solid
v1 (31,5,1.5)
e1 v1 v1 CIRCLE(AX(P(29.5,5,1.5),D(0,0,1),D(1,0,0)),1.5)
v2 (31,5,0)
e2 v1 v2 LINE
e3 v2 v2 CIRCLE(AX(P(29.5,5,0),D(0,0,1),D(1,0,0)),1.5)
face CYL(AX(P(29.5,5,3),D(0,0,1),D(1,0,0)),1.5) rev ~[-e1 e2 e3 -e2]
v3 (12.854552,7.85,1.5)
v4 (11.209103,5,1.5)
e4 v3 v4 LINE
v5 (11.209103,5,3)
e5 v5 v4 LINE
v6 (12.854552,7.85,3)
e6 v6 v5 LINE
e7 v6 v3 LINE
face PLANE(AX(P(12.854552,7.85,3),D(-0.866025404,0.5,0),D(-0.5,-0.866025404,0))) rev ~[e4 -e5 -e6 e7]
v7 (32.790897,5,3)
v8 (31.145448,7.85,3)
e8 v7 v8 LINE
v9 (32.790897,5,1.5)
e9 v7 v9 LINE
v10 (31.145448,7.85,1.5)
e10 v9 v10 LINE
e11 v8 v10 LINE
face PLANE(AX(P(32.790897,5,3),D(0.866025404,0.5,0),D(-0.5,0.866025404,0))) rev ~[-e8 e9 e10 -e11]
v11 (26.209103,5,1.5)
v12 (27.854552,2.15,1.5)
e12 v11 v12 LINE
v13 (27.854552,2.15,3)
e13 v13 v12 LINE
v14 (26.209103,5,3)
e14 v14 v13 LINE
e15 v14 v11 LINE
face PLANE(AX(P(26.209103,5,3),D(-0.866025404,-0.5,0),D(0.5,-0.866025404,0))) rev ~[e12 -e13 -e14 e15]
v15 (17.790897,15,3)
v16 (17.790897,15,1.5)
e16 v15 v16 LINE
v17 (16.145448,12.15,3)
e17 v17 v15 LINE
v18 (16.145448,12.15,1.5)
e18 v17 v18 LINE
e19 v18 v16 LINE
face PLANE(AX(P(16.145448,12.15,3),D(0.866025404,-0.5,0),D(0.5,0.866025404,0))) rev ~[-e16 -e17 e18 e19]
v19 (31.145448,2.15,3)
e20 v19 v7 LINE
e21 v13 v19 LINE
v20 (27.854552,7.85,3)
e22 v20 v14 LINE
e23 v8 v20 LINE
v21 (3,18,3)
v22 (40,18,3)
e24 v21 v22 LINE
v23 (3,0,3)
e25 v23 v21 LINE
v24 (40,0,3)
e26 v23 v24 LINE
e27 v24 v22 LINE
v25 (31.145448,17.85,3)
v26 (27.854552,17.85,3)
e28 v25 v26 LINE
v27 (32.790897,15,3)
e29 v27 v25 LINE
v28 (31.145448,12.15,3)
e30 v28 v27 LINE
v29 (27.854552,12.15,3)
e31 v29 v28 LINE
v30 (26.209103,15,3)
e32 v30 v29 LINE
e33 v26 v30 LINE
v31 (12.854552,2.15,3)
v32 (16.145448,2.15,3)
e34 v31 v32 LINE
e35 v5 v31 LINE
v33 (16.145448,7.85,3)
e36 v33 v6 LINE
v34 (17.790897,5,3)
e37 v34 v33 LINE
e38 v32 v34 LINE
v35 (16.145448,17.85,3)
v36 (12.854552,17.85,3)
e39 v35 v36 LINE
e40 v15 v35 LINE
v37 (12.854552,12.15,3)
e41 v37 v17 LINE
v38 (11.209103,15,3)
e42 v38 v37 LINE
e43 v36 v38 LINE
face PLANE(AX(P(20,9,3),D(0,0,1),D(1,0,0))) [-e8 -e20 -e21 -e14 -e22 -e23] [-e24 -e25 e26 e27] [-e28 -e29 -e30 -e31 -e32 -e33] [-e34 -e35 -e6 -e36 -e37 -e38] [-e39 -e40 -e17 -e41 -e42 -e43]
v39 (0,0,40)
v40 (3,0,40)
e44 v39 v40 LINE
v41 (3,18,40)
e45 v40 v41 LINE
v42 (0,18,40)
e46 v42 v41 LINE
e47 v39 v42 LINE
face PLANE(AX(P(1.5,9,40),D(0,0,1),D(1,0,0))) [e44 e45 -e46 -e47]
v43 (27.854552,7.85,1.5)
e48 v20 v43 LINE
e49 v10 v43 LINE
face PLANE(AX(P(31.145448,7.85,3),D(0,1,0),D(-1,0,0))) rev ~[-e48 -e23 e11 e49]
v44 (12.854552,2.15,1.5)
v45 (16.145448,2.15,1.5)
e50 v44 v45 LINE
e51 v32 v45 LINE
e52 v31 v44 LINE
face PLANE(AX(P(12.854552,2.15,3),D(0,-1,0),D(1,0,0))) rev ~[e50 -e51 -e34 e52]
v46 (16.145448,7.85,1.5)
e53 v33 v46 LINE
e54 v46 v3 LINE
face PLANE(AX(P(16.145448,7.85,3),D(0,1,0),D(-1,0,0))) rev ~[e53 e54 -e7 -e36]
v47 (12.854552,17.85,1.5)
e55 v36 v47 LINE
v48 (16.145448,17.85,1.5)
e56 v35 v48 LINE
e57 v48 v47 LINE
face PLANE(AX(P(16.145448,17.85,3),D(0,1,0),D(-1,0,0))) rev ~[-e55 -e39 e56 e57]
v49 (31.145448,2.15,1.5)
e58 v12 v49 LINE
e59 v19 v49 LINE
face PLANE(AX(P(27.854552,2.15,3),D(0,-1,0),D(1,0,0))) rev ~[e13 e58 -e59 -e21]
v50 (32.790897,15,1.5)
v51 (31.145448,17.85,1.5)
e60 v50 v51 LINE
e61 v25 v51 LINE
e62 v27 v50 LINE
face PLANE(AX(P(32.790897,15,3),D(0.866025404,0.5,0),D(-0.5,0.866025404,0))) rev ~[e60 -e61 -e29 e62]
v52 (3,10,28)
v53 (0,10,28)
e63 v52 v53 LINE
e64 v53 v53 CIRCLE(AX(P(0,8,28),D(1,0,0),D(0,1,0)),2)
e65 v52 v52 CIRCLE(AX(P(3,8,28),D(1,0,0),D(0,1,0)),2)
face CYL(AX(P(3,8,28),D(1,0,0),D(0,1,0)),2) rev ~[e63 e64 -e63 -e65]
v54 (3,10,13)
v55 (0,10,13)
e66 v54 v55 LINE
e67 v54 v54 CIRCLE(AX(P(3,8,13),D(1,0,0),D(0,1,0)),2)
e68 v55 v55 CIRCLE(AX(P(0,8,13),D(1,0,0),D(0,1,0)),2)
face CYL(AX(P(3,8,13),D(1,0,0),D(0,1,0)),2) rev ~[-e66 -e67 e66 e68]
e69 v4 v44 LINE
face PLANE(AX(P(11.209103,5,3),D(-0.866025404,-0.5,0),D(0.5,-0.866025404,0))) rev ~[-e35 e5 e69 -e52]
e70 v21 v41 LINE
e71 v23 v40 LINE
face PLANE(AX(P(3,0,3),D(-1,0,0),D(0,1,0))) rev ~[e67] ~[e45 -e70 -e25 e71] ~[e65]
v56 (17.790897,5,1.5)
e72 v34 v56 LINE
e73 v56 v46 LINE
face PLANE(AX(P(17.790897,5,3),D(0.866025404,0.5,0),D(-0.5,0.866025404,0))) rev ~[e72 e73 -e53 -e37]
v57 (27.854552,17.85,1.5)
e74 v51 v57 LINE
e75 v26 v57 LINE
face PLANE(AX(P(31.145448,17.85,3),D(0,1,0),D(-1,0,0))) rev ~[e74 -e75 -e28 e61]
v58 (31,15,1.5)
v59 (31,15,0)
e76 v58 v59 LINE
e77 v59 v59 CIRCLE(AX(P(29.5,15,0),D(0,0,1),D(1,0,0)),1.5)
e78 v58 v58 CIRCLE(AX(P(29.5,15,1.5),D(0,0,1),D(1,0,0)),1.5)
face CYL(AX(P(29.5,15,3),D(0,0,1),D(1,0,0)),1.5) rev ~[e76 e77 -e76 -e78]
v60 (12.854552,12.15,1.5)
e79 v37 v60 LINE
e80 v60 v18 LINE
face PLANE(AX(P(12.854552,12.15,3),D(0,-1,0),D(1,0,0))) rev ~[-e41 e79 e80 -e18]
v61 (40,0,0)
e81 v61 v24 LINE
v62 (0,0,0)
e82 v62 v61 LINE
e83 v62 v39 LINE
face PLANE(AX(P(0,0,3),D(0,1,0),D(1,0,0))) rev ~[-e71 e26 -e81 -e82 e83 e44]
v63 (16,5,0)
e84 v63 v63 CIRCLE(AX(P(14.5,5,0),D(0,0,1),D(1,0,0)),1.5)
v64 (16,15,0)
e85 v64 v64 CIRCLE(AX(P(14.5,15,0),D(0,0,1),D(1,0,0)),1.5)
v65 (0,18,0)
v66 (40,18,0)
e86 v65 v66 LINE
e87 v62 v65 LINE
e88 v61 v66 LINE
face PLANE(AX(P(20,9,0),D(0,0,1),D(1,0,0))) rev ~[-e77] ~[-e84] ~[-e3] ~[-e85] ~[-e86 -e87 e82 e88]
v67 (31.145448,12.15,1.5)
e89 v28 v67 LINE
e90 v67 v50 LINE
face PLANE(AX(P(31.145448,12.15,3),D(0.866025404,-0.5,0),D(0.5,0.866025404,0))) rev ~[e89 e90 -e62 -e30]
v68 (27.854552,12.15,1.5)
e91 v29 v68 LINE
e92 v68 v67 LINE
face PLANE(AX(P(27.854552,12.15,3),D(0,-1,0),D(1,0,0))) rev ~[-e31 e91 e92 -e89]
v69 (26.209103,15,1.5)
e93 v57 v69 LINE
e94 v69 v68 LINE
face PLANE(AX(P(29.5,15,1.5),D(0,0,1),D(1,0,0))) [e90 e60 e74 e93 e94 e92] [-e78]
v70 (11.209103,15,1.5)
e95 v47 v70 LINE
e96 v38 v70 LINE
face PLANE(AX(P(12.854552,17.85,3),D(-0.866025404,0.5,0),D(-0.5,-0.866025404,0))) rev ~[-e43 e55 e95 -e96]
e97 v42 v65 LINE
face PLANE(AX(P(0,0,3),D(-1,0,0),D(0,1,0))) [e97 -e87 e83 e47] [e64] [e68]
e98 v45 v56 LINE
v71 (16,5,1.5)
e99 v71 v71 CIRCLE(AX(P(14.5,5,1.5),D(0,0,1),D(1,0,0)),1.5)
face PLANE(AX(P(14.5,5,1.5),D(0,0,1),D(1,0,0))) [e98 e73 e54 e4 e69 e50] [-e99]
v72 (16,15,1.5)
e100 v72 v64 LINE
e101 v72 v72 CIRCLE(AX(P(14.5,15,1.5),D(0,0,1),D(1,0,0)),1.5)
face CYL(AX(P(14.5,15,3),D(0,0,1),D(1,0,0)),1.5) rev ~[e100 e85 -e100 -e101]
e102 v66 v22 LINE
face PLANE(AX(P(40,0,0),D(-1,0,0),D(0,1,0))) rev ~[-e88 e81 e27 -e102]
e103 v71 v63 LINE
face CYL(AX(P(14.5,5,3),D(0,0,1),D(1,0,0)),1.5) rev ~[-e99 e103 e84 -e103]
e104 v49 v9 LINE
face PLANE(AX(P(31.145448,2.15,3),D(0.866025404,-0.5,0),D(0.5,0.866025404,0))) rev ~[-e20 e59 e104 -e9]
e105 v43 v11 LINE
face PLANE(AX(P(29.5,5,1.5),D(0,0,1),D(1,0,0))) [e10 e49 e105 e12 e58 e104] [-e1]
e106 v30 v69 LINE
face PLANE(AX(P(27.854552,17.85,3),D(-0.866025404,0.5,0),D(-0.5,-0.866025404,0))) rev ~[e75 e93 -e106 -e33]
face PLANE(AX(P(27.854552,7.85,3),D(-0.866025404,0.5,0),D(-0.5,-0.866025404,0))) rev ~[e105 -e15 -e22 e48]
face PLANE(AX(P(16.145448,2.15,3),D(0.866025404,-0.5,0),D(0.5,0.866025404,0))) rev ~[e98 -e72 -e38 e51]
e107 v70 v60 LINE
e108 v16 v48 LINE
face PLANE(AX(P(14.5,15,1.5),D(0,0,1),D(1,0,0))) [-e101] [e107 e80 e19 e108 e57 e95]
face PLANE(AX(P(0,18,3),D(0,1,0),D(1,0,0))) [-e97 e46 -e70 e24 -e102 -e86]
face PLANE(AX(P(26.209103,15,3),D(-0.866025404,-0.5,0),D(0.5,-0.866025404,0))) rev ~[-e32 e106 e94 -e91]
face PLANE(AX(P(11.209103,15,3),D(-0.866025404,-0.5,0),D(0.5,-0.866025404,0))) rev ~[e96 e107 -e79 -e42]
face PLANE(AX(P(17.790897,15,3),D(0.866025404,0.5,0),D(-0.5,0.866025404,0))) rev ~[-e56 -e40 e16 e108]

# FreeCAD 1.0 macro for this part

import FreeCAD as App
import Part
import Sketcher
from FreeCAD import Vector
Q = App.Units.Quantity

doc = App.newDocument("Part")
params = doc.addObject("Spreadsheet::Sheet", "Params")
for row, (alias, value) in enumerate([
    ("sketch1_width", "40 mm"),
    ("sketch1_height", "18 mm"),
    ("pad1_length", "3 mm"),
    ("sketch2_width", "3 mm"),
    ("sketch2_height", "18 mm"),
    ("pad2_length", "37 mm"),
    ("sketch3_diameter", "3 mm"),
    ("sketch4_diameter", "4 mm"),
    ("pocket3_length", "1.5 mm"),
], start=1):
    params.set(f"A{row}", alias)
    params.set(f"B{row}", "=" + value)
    params.setAlias(f"B{row}", alias)

body = doc.addObject("PartDesign::Body", "Body")

# Sketch on XY plane
sketch1 = body.newObject("Sketcher::SketchObject", "Sketch")
sketch1.AttachmentSupport = (doc.getObject("XY_Plane"), [""])
sketch1.MapMode = "FlatFace"
sketch1.addGeometry(Part.LineSegment(Vector(0, 18, 0), Vector(0, 0, 0)), False)
sketch1.addGeometry(Part.LineSegment(Vector(0, 0, 0), Vector(40, 0, 0)), False)
sketch1.addGeometry(Part.LineSegment(Vector(40, 0, 0), Vector(40, 18, 0)), False)
sketch1.addGeometry(Part.LineSegment(Vector(40, 18, 0), Vector(0, 18, 0)), False)
sketch1.addConstraint(Sketcher.Constraint("Coincident", 0, 2, 1, 1))
sketch1.addConstraint(Sketcher.Constraint("Coincident", 1, 2, 2, 1))
sketch1.addConstraint(Sketcher.Constraint("Coincident", 2, 2, 3, 1))
sketch1.addConstraint(Sketcher.Constraint("Coincident", 3, 2, 0, 1))
sketch1.addConstraint(Sketcher.Constraint("Vertical", 0))
sketch1.addConstraint(Sketcher.Constraint("Horizontal", 1))
sketch1.addConstraint(Sketcher.Constraint("Vertical", 2))
sketch1.addConstraint(Sketcher.Constraint("Horizontal", 3))
sketch1.addConstraint(Sketcher.Constraint("Coincident", 0, 2, -1, 1))
sketch1.addConstraint(Sketcher.Constraint("DistanceX", 1, 1, 1, 2, Q("40 mm")))
sketch1.addConstraint(Sketcher.Constraint("DistanceY", 0, 2, 0, 1, Q("18 mm")))
sketch1.setExpression("Constraints[9]", "Params.sketch1_width")
sketch1.setExpression("Constraints[10]", "Params.sketch1_height")
pad1 = body.newObject("PartDesign::Pad", "Pad")
pad1.Profile = sketch1
pad1.setExpression("Length", "Params.pad1_length")

# Sketch on XY plane
sketch2 = body.newObject("Sketcher::SketchObject", "Sketch001")
sketch2.AttachmentSupport = (doc.getObject("XY_Plane"), [""])
sketch2.MapMode = "FlatFace"
sketch2.AttachmentOffset = App.Placement(Vector(0, 0, 3), App.Rotation())
sketch2.addGeometry(Part.LineSegment(Vector(0, 18, 0), Vector(0, 0, 0)), False)
sketch2.addGeometry(Part.LineSegment(Vector(0, 0, 0), Vector(3, 0, 0)), False)
sketch2.addGeometry(Part.LineSegment(Vector(3, 0, 0), Vector(3, 18, 0)), False)
sketch2.addGeometry(Part.LineSegment(Vector(3, 18, 0), Vector(0, 18, 0)), False)
sketch2.addConstraint(Sketcher.Constraint("Coincident", 0, 2, 1, 1))
sketch2.addConstraint(Sketcher.Constraint("Coincident", 1, 2, 2, 1))
sketch2.addConstraint(Sketcher.Constraint("Coincident", 2, 2, 3, 1))
sketch2.addConstraint(Sketcher.Constraint("Coincident", 3, 2, 0, 1))
sketch2.addConstraint(Sketcher.Constraint("Vertical", 0))
sketch2.addConstraint(Sketcher.Constraint("Horizontal", 1))
sketch2.addConstraint(Sketcher.Constraint("Vertical", 2))
sketch2.addConstraint(Sketcher.Constraint("Horizontal", 3))
sketch2.addConstraint(Sketcher.Constraint("Coincident", 0, 2, -1, 1))
sketch2.addConstraint(Sketcher.Constraint("DistanceX", 1, 1, 1, 2, Q("3 mm")))
sketch2.addConstraint(Sketcher.Constraint("DistanceY", 0, 2, 0, 1, Q("18 mm")))
sketch2.setExpression("Constraints[9]", "Params.sketch2_width")
sketch2.setExpression("Constraints[10]", "Params.sketch2_height")
pad2 = body.newObject("PartDesign::Pad", "Pad001")
pad2.Profile = sketch2
pad2.setExpression("Length", "Params.pad2_length")

# Sketch on XY plane
sketch3 = body.newObject("Sketcher::SketchObject", "Sketch002")
sketch3.AttachmentSupport = (doc.getObject("XY_Plane"), [""])
sketch3.MapMode = "FlatFace"
sketch3.AttachmentOffset = App.Placement(Vector(0, 0, 3), App.Rotation())
sketch3.addGeometry(Part.Circle(Vector(14.5, 15, 0), Vector(0, 0, 1), 1.5), False)
sketch3.addGeometry(Part.Circle(Vector(29.5, 15, 0), Vector(0, 0, 1), 1.5), False)
sketch3.addGeometry(Part.Circle(Vector(14.5, 5, 0), Vector(0, 0, 1), 1.5), False)
sketch3.addGeometry(Part.Circle(Vector(29.5, 5, 0), Vector(0, 0, 1), 1.5), False)
sketch3.addConstraint(Sketcher.Constraint("Equal", 0, 1))
sketch3.addConstraint(Sketcher.Constraint("Equal", 1, 2))
sketch3.addConstraint(Sketcher.Constraint("Equal", 2, 3))
sketch3.addConstraint(Sketcher.Constraint("Horizontal", 0, 3, 1, 3))
sketch3.addConstraint(Sketcher.Constraint("Horizontal", 2, 3, 3, 3))
sketch3.addConstraint(Sketcher.Constraint("Vertical", 0, 3, 2, 3))
sketch3.addConstraint(Sketcher.Constraint("Vertical", 1, 3, 3, 3))
sketch3.addConstraint(Sketcher.Constraint("Diameter", 0, Q("3 mm")))
sketch3.addConstraint(Sketcher.Constraint("DistanceY", -1, 1, 0, 3, Q("15 mm")))
sketch3.addConstraint(Sketcher.Constraint("DistanceY", -1, 1, 2, 3, Q("5 mm")))
sketch3.addConstraint(Sketcher.Constraint("DistanceX", 0, 3, 1, 3, Q("15 mm")))
sketch3.addConstraint(Sketcher.Constraint("DistanceX", -1, 1, 0, 3, Q("14.5 mm")))
sketch3.setExpression("Constraints[7]", "Params.sketch3_diameter")
pocket1 = body.newObject("PartDesign::Pocket", "Pocket")
pocket1.Profile = sketch3
pocket1.Type = "ThroughAll"

# Sketch on YZ plane
sketch4 = body.newObject("Sketcher::SketchObject", "Sketch003")
sketch4.AttachmentSupport = (doc.getObject("YZ_Plane"), [""])
sketch4.MapMode = "FlatFace"
sketch4.AttachmentOffset = App.Placement(Vector(0, 0, 3), App.Rotation())
sketch4.addGeometry(Part.Circle(Vector(8, 28, 0), Vector(0, 0, 1), 2), False)
sketch4.addGeometry(Part.Circle(Vector(8, 13, 0), Vector(0, 0, 1), 2), False)
sketch4.addConstraint(Sketcher.Constraint("Equal", 0, 1))
sketch4.addConstraint(Sketcher.Constraint("Vertical", 0, 3, 1, 3))
sketch4.addConstraint(Sketcher.Constraint("Diameter", 0, Q("4 mm")))
sketch4.addConstraint(Sketcher.Constraint("DistanceX", -1, 1, 0, 3, Q("8 mm")))
sketch4.addConstraint(Sketcher.Constraint("DistanceY", -1, 1, 0, 3, Q("28 mm")))
sketch4.addConstraint(Sketcher.Constraint("DistanceY", -1, 1, 1, 3, Q("13 mm")))
sketch4.setExpression("Constraints[2]", "Params.sketch4_diameter")
pocket2 = body.newObject("PartDesign::Pocket", "Pocket001")
pocket2.Profile = sketch4
pocket2.Type = "ThroughAll"

# Sketch on XY plane
sketch5 = body.newObject("Sketcher::SketchObject", "Sketch004")
sketch5.AttachmentSupport = (doc.getObject("XY_Plane"), [""])
sketch5.MapMode = "FlatFace"
sketch5.AttachmentOffset = App.Placement(Vector(0, 0, 3), App.Rotation())
sketch5.addGeometry(Part.LineSegment(Vector(12.854552, 7.85, 0), Vector(11.209103, 5, 0)), False)
sketch5.addGeometry(Part.LineSegment(Vector(11.209103, 5, 0), Vector(12.854552, 2.15, 0)), False)
sketch5.addGeometry(Part.LineSegment(Vector(12.854552, 2.15, 0), Vector(16.145448, 2.15, 0)), False)
sketch5.addGeometry(Part.LineSegment(Vector(16.145448, 2.15, 0), Vector(17.790897, 5, 0)), False)
sketch5.addGeometry(Part.LineSegment(Vector(17.790897, 5, 0), Vector(16.145448, 7.85, 0)), False)
sketch5.addGeometry(Part.LineSegment(Vector(16.145448, 7.85, 0), Vector(12.854552, 7.85, 0)), False)
sketch5.addGeometry(Part.LineSegment(Vector(27.854552, 17.85, 0), Vector(26.209103, 15, 0)), False)
sketch5.addGeometry(Part.LineSegment(Vector(26.209103, 15, 0), Vector(27.854552, 12.15, 0)), False)
sketch5.addGeometry(Part.LineSegment(Vector(27.854552, 12.15, 0), Vector(31.145448, 12.15, 0)), False)
sketch5.addGeometry(Part.LineSegment(Vector(31.145448, 12.15, 0), Vector(32.790897, 15, 0)), False)
sketch5.addGeometry(Part.LineSegment(Vector(32.790897, 15, 0), Vector(31.145448, 17.85, 0)), False)
sketch5.addGeometry(Part.LineSegment(Vector(31.145448, 17.85, 0), Vector(27.854552, 17.85, 0)), False)
sketch5.addGeometry(Part.LineSegment(Vector(27.854552, 7.85, 0), Vector(26.209103, 5, 0)), False)
sketch5.addGeometry(Part.LineSegment(Vector(26.209103, 5, 0), Vector(27.854552, 2.15, 0)), False)
sketch5.addGeometry(Part.LineSegment(Vector(27.854552, 2.15, 0), Vector(31.145448, 2.15, 0)), False)
sketch5.addGeometry(Part.LineSegment(Vector(31.145448, 2.15, 0), Vector(32.790897, 5, 0)), False)
sketch5.addGeometry(Part.LineSegment(Vector(32.790897, 5, 0), Vector(31.145448, 7.85, 0)), False)
sketch5.addGeometry(Part.LineSegment(Vector(31.145448, 7.85, 0), Vector(27.854552, 7.85, 0)), False)
sketch5.addGeometry(Part.LineSegment(Vector(12.854552, 17.85, 0), Vector(11.209103, 15, 0)), False)
sketch5.addGeometry(Part.LineSegment(Vector(11.209103, 15, 0), Vector(12.854552, 12.15, 0)), False)
sketch5.addGeometry(Part.LineSegment(Vector(12.854552, 12.15, 0), Vector(16.145448, 12.15, 0)), False)
sketch5.addGeometry(Part.LineSegment(Vector(16.145448, 12.15, 0), Vector(17.790897, 15, 0)), False)
sketch5.addGeometry(Part.LineSegment(Vector(17.790897, 15, 0), Vector(16.145448, 17.85, 0)), False)
sketch5.addGeometry(Part.LineSegment(Vector(16.145448, 17.85, 0), Vector(12.854552, 17.85, 0)), False)
sketch5.addConstraint(Sketcher.Constraint("Coincident", 0, 2, 1, 1))
sketch5.addConstraint(Sketcher.Constraint("Coincident", 1, 2, 2, 1))
sketch5.addConstraint(Sketcher.Constraint("Coincident", 2, 2, 3, 1))
sketch5.addConstraint(Sketcher.Constraint("Coincident", 3, 2, 4, 1))
sketch5.addConstraint(Sketcher.Constraint("Coincident", 4, 2, 5, 1))
sketch5.addConstraint(Sketcher.Constraint("Coincident", 5, 2, 0, 1))
sketch5.addConstraint(Sketcher.Constraint("Coincident", 6, 2, 7, 1))
sketch5.addConstraint(Sketcher.Constraint("Coincident", 7, 2, 8, 1))
sketch5.addConstraint(Sketcher.Constraint("Coincident", 8, 2, 9, 1))
sketch5.addConstraint(Sketcher.Constraint("Coincident", 9, 2, 10, 1))
sketch5.addConstraint(Sketcher.Constraint("Coincident", 10, 2, 11, 1))
sketch5.addConstraint(Sketcher.Constraint("Coincident", 11, 2, 6, 1))
sketch5.addConstraint(Sketcher.Constraint("Coincident", 12, 2, 13, 1))
sketch5.addConstraint(Sketcher.Constraint("Coincident", 13, 2, 14, 1))
sketch5.addConstraint(Sketcher.Constraint("Coincident", 14, 2, 15, 1))
sketch5.addConstraint(Sketcher.Constraint("Coincident", 15, 2, 16, 1))
sketch5.addConstraint(Sketcher.Constraint("Coincident", 16, 2, 17, 1))
sketch5.addConstraint(Sketcher.Constraint("Coincident", 17, 2, 12, 1))
sketch5.addConstraint(Sketcher.Constraint("Coincident", 18, 2, 19, 1))
sketch5.addConstraint(Sketcher.Constraint("Coincident", 19, 2, 20, 1))
sketch5.addConstraint(Sketcher.Constraint("Coincident", 20, 2, 21, 1))
sketch5.addConstraint(Sketcher.Constraint("Coincident", 21, 2, 22, 1))
sketch5.addConstraint(Sketcher.Constraint("Coincident", 22, 2, 23, 1))
sketch5.addConstraint(Sketcher.Constraint("Coincident", 23, 2, 18, 1))
sketch5.addConstraint(Sketcher.Constraint("Horizontal", 2))
sketch5.addConstraint(Sketcher.Constraint("Horizontal", 5))
sketch5.addConstraint(Sketcher.Constraint("Horizontal", 8))
sketch5.addConstraint(Sketcher.Constraint("Horizontal", 11))
sketch5.addConstraint(Sketcher.Constraint("Horizontal", 14))
sketch5.addConstraint(Sketcher.Constraint("Horizontal", 17))
sketch5.addConstraint(Sketcher.Constraint("Horizontal", 20))
sketch5.addConstraint(Sketcher.Constraint("Horizontal", 23))
sketch5.addConstraint(Sketcher.Constraint("Parallel", 0, 3))
sketch5.addConstraint(Sketcher.Constraint("Parallel", 1, 4))
sketch5.addConstraint(Sketcher.Constraint("Parallel", 3, 6))
sketch5.addConstraint(Sketcher.Constraint("Parallel", 4, 7))
sketch5.addConstraint(Sketcher.Constraint("Parallel", 6, 9))
sketch5.addConstraint(Sketcher.Constraint("Parallel", 7, 10))
sketch5.addConstraint(Sketcher.Constraint("Parallel", 9, 12))
sketch5.addConstraint(Sketcher.Constraint("Parallel", 10, 13))
sketch5.addConstraint(Sketcher.Constraint("Parallel", 12, 15))
sketch5.addConstraint(Sketcher.Constraint("Parallel", 13, 16))
sketch5.addConstraint(Sketcher.Constraint("Parallel", 15, 18))
sketch5.addConstraint(Sketcher.Constraint("Parallel", 16, 19))
sketch5.addConstraint(Sketcher.Constraint("Parallel", 18, 21))
sketch5.addConstraint(Sketcher.Constraint("Parallel", 19, 22))
sketch5.addConstraint(Sketcher.Constraint("Horizontal", 0, 2, 3, 2))
sketch5.addConstraint(Sketcher.Constraint("Horizontal", 6, 2, 9, 2))
sketch5.addConstraint(Sketcher.Constraint("Horizontal", 3, 2, 12, 2))
sketch5.addConstraint(Sketcher.Constraint("Horizontal", 2, 2, 13, 2))
sketch5.addConstraint(Sketcher.Constraint("Horizontal", 12, 2, 15, 2))
sketch5.addConstraint(Sketcher.Constraint("Horizontal", 5, 2, 16, 2))
sketch5.addConstraint(Sketcher.Constraint("Horizontal", 9, 2, 18, 2))
sketch5.addConstraint(Sketcher.Constraint("Horizontal", 8, 2, 19, 2))
sketch5.addConstraint(Sketcher.Constraint("Horizontal", 18, 2, 21, 2))
sketch5.addConstraint(Sketcher.Constraint("Horizontal", 11, 2, 22, 2))
sketch5.addConstraint(Sketcher.Constraint("Vertical", 2, 2, 4, 2))
sketch5.addConstraint(Sketcher.Constraint("Vertical", 1, 2, 5, 2))
sketch5.addConstraint(Sketcher.Constraint("Vertical", 8, 2, 10, 2))
sketch5.addConstraint(Sketcher.Constraint("Vertical", 6, 2, 12, 2))
sketch5.addConstraint(Sketcher.Constraint("Vertical", 11, 2, 13, 2))
sketch5.addConstraint(Sketcher.Constraint("Vertical", 10, 2, 14, 2))
sketch5.addConstraint(Sketcher.Constraint("Vertical", 0, 2, 18, 2))
sketch5.addConstraint(Sketcher.Constraint("Vertical", 4, 2, 20, 2))
sketch5.addConstraint(Sketcher.Constraint("Equal", 5, 8))
sketch5.addConstraint(Sketcher.Constraint("Angle", 0, Q("-120 deg")))
sketch5.addConstraint(Sketcher.Constraint("DistanceY", -1, 1, 0, 2, Q("5 mm")))
sketch5.addConstraint(Sketcher.Constraint("DistanceY", -1, 1, 6, 2, Q("15 mm")))
sketch5.addConstraint(Sketcher.Constraint("DistanceX", 0, 2, 6, 2, Q("15 mm")))
sketch5.addConstraint(Sketcher.Constraint("DistanceY", 2, 2, 4, 2, Q("5.7 mm")))
sketch5.addConstraint(Sketcher.Constraint("DistanceX", 2, 1, 2, 2, Q("3.290897 mm")))
sketch5.addConstraint(Sketcher.Constraint("DistanceX", -1, 1, 1, 2, Q("12.854552 mm")))
pocket3 = body.newObject("PartDesign::Pocket", "Pocket002")
pocket3.Profile = sketch5
pocket3.setExpression("Length", "Params.pocket3_length")

doc.recompute()
